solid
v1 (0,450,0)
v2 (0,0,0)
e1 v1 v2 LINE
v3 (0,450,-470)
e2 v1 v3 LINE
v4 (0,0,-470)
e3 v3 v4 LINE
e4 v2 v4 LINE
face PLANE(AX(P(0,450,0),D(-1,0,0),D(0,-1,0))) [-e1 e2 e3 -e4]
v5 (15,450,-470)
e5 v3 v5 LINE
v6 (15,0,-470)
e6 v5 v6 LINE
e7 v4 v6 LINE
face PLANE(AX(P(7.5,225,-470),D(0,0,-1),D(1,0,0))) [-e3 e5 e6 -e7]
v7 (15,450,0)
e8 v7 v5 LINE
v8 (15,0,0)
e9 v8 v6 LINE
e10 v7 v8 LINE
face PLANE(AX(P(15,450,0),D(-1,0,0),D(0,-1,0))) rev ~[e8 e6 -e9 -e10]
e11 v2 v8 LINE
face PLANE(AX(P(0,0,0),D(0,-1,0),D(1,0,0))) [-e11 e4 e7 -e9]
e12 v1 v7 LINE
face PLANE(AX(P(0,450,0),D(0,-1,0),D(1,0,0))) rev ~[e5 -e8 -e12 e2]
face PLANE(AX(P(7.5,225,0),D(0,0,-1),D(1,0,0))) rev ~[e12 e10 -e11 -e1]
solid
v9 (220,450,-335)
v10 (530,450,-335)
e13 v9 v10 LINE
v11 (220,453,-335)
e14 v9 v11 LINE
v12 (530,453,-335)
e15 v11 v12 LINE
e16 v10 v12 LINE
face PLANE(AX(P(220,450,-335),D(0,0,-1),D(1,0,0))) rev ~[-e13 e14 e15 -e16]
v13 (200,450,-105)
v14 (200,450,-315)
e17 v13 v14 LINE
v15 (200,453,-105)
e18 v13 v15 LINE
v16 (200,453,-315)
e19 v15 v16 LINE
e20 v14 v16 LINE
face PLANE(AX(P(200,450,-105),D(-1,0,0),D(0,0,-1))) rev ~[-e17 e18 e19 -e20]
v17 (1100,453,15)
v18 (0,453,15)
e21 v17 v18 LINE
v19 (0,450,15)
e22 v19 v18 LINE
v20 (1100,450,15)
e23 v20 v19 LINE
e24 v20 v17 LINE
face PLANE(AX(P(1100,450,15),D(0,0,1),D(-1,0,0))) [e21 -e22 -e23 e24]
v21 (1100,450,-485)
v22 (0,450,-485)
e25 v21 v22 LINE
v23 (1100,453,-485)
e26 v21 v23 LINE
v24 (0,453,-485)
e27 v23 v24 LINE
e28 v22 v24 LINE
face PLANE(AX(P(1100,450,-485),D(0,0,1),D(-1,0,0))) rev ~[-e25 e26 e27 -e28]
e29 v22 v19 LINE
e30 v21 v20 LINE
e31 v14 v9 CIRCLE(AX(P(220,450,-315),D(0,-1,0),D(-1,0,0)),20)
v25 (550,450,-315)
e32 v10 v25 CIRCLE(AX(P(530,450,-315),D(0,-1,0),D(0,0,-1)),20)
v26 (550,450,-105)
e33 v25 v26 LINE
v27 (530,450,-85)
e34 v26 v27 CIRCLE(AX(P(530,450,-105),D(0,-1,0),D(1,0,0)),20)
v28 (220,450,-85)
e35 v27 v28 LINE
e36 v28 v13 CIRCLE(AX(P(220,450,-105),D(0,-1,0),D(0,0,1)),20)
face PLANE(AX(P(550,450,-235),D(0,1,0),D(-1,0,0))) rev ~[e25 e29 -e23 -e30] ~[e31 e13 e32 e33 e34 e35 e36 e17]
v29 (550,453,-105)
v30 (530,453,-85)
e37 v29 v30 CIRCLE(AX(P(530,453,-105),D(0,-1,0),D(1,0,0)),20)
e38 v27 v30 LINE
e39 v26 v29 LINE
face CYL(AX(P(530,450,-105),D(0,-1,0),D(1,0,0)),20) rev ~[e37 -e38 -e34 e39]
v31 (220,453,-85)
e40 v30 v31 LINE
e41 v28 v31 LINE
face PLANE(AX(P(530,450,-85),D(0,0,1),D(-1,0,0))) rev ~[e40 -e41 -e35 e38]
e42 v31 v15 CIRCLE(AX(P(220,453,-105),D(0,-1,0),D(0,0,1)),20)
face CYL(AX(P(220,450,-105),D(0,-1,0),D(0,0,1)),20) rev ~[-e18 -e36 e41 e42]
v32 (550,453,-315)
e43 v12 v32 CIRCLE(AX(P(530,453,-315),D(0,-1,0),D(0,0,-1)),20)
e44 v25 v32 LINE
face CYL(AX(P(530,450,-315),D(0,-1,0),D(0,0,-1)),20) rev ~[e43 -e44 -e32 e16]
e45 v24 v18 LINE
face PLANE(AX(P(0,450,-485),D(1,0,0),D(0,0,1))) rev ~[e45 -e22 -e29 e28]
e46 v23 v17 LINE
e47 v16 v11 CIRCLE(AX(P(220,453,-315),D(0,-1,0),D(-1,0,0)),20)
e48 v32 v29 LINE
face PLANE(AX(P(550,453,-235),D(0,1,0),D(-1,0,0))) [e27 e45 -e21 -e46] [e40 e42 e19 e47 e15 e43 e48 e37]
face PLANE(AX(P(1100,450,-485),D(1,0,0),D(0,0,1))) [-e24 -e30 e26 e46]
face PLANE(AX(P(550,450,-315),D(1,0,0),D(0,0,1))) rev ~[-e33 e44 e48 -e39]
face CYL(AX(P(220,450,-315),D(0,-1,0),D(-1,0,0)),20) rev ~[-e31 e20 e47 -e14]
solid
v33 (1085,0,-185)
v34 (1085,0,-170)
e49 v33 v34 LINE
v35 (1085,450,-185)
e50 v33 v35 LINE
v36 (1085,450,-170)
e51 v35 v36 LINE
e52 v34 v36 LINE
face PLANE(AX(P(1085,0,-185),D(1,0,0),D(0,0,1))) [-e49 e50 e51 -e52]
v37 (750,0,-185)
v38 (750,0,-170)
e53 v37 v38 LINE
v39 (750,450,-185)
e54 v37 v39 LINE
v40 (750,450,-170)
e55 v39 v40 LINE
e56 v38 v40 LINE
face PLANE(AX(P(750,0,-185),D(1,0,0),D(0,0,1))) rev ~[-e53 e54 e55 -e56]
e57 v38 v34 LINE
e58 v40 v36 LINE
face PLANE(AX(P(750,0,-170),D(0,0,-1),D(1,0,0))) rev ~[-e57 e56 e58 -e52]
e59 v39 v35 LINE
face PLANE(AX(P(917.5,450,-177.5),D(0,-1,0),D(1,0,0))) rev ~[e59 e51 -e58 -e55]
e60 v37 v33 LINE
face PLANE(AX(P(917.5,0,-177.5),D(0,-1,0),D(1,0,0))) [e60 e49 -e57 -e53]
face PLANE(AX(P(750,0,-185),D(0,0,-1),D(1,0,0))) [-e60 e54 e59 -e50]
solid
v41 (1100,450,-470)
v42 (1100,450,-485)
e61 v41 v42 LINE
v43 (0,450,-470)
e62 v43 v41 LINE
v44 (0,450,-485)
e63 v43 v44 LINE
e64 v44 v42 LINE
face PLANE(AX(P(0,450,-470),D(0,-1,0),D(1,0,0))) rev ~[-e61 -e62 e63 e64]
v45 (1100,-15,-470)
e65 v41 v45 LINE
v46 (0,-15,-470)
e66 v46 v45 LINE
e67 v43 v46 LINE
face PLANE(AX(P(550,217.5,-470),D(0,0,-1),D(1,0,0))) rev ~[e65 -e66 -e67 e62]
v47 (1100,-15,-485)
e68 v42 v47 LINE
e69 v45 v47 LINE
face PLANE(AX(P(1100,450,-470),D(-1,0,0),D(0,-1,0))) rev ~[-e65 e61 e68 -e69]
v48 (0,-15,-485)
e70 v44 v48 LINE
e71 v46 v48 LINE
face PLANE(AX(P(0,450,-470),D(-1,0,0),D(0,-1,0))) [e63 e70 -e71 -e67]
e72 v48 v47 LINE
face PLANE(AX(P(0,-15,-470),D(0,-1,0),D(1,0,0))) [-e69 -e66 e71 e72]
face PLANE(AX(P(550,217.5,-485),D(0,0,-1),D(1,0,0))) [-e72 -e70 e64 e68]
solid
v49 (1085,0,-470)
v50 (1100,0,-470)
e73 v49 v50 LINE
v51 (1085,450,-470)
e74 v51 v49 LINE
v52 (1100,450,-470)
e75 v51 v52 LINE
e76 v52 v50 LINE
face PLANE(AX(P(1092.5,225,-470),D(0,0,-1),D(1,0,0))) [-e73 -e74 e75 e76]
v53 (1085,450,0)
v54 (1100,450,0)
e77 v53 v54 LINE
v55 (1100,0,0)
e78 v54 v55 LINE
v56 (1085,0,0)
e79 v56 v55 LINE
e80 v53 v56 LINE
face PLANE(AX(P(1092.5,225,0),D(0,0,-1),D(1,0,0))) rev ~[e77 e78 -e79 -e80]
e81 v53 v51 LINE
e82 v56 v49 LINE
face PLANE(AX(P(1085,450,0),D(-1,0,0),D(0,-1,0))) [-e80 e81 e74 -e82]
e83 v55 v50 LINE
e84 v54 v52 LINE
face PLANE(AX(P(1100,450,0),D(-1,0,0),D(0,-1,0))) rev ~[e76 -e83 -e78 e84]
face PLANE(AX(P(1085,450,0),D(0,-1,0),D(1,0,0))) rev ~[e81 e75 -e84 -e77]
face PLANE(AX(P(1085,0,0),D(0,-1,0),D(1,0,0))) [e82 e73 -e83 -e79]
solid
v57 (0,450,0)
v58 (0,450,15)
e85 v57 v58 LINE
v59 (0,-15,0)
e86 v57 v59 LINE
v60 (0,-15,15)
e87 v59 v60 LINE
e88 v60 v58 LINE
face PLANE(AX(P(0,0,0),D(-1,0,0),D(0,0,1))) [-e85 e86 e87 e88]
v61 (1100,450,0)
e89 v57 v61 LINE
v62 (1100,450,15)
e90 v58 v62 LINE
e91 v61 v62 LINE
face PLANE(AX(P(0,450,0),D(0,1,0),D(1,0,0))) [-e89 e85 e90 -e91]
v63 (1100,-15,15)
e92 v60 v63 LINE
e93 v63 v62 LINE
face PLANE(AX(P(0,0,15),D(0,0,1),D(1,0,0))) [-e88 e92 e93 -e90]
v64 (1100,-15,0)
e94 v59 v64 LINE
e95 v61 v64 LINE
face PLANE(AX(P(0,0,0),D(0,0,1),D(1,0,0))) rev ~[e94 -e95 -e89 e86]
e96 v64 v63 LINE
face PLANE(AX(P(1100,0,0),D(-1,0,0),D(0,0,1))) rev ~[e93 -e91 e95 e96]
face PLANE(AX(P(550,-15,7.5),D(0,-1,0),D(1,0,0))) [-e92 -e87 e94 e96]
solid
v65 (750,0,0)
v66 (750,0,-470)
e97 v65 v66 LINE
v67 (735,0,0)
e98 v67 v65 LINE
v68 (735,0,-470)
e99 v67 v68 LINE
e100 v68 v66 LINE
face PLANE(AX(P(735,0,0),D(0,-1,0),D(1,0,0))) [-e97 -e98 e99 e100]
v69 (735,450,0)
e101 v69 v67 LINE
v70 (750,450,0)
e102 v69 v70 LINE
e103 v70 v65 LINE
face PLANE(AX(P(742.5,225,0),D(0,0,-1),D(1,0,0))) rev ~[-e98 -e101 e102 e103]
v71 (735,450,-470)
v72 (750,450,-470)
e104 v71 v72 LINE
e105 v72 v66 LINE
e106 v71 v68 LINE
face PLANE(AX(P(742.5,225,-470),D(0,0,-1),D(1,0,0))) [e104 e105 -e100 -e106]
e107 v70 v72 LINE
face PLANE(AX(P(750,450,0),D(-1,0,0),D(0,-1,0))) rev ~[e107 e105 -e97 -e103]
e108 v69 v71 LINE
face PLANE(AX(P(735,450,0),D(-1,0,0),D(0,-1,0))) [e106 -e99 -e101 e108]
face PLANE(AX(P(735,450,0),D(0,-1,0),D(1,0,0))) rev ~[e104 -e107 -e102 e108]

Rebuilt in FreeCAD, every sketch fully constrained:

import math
import FreeCAD as App
import Part
import Sketcher

V = App.Vector

doc = App.newDocument("Part")
body = doc.addObject("PartDesign::Body", "Body")

# Sketch on XY plane
sketch1 = body.newObject("Sketcher::SketchObject", "Sketch")
sketch1.AttachmentSupport = (doc.getObject("XY_Plane"), [""])
sketch1.MapMode = "FlatFace"
sketch1.addGeometry(Part.LineSegment(V(0, 450, 0), V(0, 0, 0)), False)
sketch1.addGeometry(Part.LineSegment(V(0, 0, 0), V(1100, 0, 0)), False)
sketch1.addGeometry(Part.LineSegment(V(1100, 0, 0), V(1100, 450, 0)), False)
sketch1.addGeometry(Part.LineSegment(V(1100, 450, 0), V(0, 450, 0)), False)
sketch1.addConstraint(Sketcher.Constraint("Coincident", 0, 2, 1, 1))
sketch1.addConstraint(Sketcher.Constraint("Coincident", 1, 2, 2, 1))
sketch1.addConstraint(Sketcher.Constraint("Coincident", 2, 2, 3, 1))
sketch1.addConstraint(Sketcher.Constraint("Coincident", 3, 2, 0, 1))
sketch1.addConstraint(Sketcher.Constraint("Vertical", 0))
sketch1.addConstraint(Sketcher.Constraint("Horizontal", 1))
sketch1.addConstraint(Sketcher.Constraint("Vertical", 2))
sketch1.addConstraint(Sketcher.Constraint("Horizontal", 3))
sketch1.addConstraint(Sketcher.Constraint("Coincident", 0, 2, -1, 1))
sketch1.addConstraint(Sketcher.Constraint("DistanceX", 1, 1, 1, 2, 1100.0))
sketch1.addConstraint(Sketcher.Constraint("DistanceY", 0, 2, 0, 1, 450.0))
pad1 = body.newObject("PartDesign::Pad", "Pad")
pad1.Profile = sketch1
pad1.Length = 15

# Sketch on XZ plane
sketch2 = body.newObject("Sketcher::SketchObject", "Sketch001")
sketch2.AttachmentSupport = (doc.getObject("XZ_Plane"), [""])
sketch2.MapMode = "FlatFace"
sketch2.addGeometry(Part.LineSegment(V(0, 15, 0), V(0, 0, 0)), False)
sketch2.addGeometry(Part.LineSegment(V(0, 0, 0), V(1100, 0, 0)), False)
sketch2.addGeometry(Part.LineSegment(V(1100, 0, 0), V(1100, 15, 0)), False)
sketch2.addGeometry(Part.LineSegment(V(1100, 15, 0), V(0, 15, 0)), False)
sketch2.addConstraint(Sketcher.Constraint("Coincident", 0, 2, 1, 1))
sketch2.addConstraint(Sketcher.Constraint("Coincident", 1, 2, 2, 1))
sketch2.addConstraint(Sketcher.Constraint("Coincident", 2, 2, 3, 1))
sketch2.addConstraint(Sketcher.Constraint("Coincident", 3, 2, 0, 1))
sketch2.addConstraint(Sketcher.Constraint("Vertical", 0))
sketch2.addConstraint(Sketcher.Constraint("Horizontal", 1))
sketch2.addConstraint(Sketcher.Constraint("Vertical", 2))
sketch2.addConstraint(Sketcher.Constraint("Horizontal", 3))
sketch2.addConstraint(Sketcher.Constraint("Coincident", 0, 2, -1, 1))
sketch2.addConstraint(Sketcher.Constraint("DistanceX", 1, 1, 1, 2, 1100.0))
sketch2.addConstraint(Sketcher.Constraint("DistanceY", 0, 2, 0, 1, 15.0))
pad2 = body.newObject("PartDesign::Pad", "Pad001")
pad2.Profile = sketch2
pad2.Length = 15
body2 = doc.addObject("PartDesign::Body", "Body001")

# Sketch on XY plane
sketch3 = body2.newObject("Sketcher::SketchObject", "Sketch002")
sketch3.AttachmentSupport = (doc.getObject("XY_Plane001"), [""])
sketch3.MapMode = "FlatFace"
sketch3.addGeometry(Part.LineSegment(V(1085, 0, 0), V(1085, 450, 0)), False)
sketch3.addGeometry(Part.LineSegment(V(1085, 450, 0), V(1100, 450, 0)), False)
sketch3.addGeometry(Part.LineSegment(V(1100, 450, 0), V(1100, 0, 0)), False)
sketch3.addGeometry(Part.LineSegment(V(1100, 0, 0), V(1085, 0, 0)), False)
sketch3.addConstraint(Sketcher.Constraint("Coincident", 0, 2, 1, 1))
sketch3.addConstraint(Sketcher.Constraint("Coincident", 1, 2, 2, 1))
sketch3.addConstraint(Sketcher.Constraint("Coincident", 2, 2, 3, 1))
sketch3.addConstraint(Sketcher.Constraint("Coincident", 3, 2, 0, 1))
sketch3.addConstraint(Sketcher.Constraint("Vertical", 0))
sketch3.addConstraint(Sketcher.Constraint("Horizontal", 1))
sketch3.addConstraint(Sketcher.Constraint("Vertical", 2))
sketch3.addConstraint(Sketcher.Constraint("Horizontal", 3))
sketch3.addConstraint(Sketcher.Constraint("PointOnObject", 2, 2, -1))
sketch3.addConstraint(Sketcher.Constraint("DistanceX", 1, 1, 1, 2, 15.0))
sketch3.addConstraint(Sketcher.Constraint("DistanceY", 0, 1, 0, 2, 450.0))
sketch3.addConstraint(Sketcher.Constraint("DistanceX", -1, 1, 0, 2, 1085.0))
pad3 = body2.newObject("PartDesign::Pad", "Pad002")
pad3.Profile = sketch3
pad3.Length = 470
pad3.Reversed = True
body3 = doc.addObject("PartDesign::Body", "Body002")

# Sketch on XY plane
sketch4 = body3.newObject("Sketcher::SketchObject", "Sketch003")
sketch4.AttachmentSupport = (doc.getObject("XY_Plane002"), [""])
sketch4.MapMode = "FlatFace"
sketch4.addGeometry(Part.LineSegment(V(0, 0, 0), V(0, 450, 0)), False)
sketch4.addGeometry(Part.LineSegment(V(0, 450, 0), V(15, 450, 0)), False)
sketch4.addGeometry(Part.LineSegment(V(15, 450, 0), V(15, 0, 0)), False)
sketch4.addGeometry(Part.LineSegment(V(15, 0, 0), V(0, 0, 0)), False)
sketch4.addConstraint(Sketcher.Constraint("Coincident", 0, 2, 1, 1))
sketch4.addConstraint(Sketcher.Constraint("Coincident", 1, 2, 2, 1))
sketch4.addConstraint(Sketcher.Constraint("Coincident", 2, 2, 3, 1))
sketch4.addConstraint(Sketcher.Constraint("Coincident", 3, 2, 0, 1))
sketch4.addConstraint(Sketcher.Constraint("Vertical", 0))
sketch4.addConstraint(Sketcher.Constraint("Horizontal", 1))
sketch4.addConstraint(Sketcher.Constraint("Vertical", 2))
sketch4.addConstraint(Sketcher.Constraint("Horizontal", 3))
sketch4.addConstraint(Sketcher.Constraint("Coincident", 3, 2, -1, 1))
sketch4.addConstraint(Sketcher.Constraint("DistanceX", 1, 1, 1, 2, 15.0))
sketch4.addConstraint(Sketcher.Constraint("DistanceY", 0, 1, 0, 2, 450.0))
pad4 = body3.newObject("PartDesign::Pad", "Pad003")
pad4.Profile = sketch4
pad4.Length = 470
pad4.Reversed = True
body4 = doc.addObject("PartDesign::Body", "Body003")

# Sketch on XY plane
sketch5 = body4.newObject("Sketcher::SketchObject", "Sketch004")
sketch5.AttachmentSupport = (doc.getObject("XY_Plane003"), [""])
sketch5.MapMode = "FlatFace"
sketch5.addGeometry(Part.LineSegment(V(735, 0, 0), V(735, 450, 0)), False)
sketch5.addGeometry(Part.LineSegment(V(735, 450, 0), V(750, 450, 0)), False)
sketch5.addGeometry(Part.LineSegment(V(750, 450, 0), V(750, 0, 0)), False)
sketch5.addGeometry(Part.LineSegment(V(750, 0, 0), V(735, 0, 0)), False)
sketch5.addConstraint(Sketcher.Constraint("Coincident", 0, 2, 1, 1))
sketch5.addConstraint(Sketcher.Constraint("Coincident", 1, 2, 2, 1))
sketch5.addConstraint(Sketcher.Constraint("Coincident", 2, 2, 3, 1))
sketch5.addConstraint(Sketcher.Constraint("Coincident", 3, 2, 0, 1))
sketch5.addConstraint(Sketcher.Constraint("Vertical", 0))
sketch5.addConstraint(Sketcher.Constraint("Horizontal", 1))
sketch5.addConstraint(Sketcher.Constraint("Vertical", 2))
sketch5.addConstraint(Sketcher.Constraint("Horizontal", 3))
sketch5.addConstraint(Sketcher.Constraint("PointOnObject", 2, 2, -1))
sketch5.addConstraint(Sketcher.Constraint("DistanceX", 1, 1, 1, 2, 15.0))
sketch5.addConstraint(Sketcher.Constraint("DistanceY", 0, 1, 0, 2, 450.0))
sketch5.addConstraint(Sketcher.Constraint("DistanceX", -1, 1, 0, 2, 735.0))
pad5 = body4.newObject("PartDesign::Pad", "Pad004")
pad5.Profile = sketch5
pad5.Length = 470
pad5.Reversed = True
body5 = doc.addObject("PartDesign::Body", "Body004")

# Sketch on XY plane
sketch6 = body5.newObject("Sketcher::SketchObject", "Sketch005")
sketch6.AttachmentSupport = (doc.getObject("XY_Plane004"), [""])
sketch6.MapMode = "FlatFace"
sketch6.AttachmentOffset = App.Placement(V(0, 0, -470), App.Rotation())
sketch6.addGeometry(Part.LineSegment(V(0, -15, 0), V(0, 450, 0)), False)
sketch6.addGeometry(Part.LineSegment(V(0, 450, 0), V(1100, 450, 0)), False)
sketch6.addGeometry(Part.LineSegment(V(1100, 450, 0), V(1100, -15, 0)), False)
sketch6.addGeometry(Part.LineSegment(V(1100, -15, 0), V(0, -15, 0)), False)
sketch6.addConstraint(Sketcher.Constraint("Coincident", 0, 2, 1, 1))
sketch6.addConstraint(Sketcher.Constraint("Coincident", 1, 2, 2, 1))
sketch6.addConstraint(Sketcher.Constraint("Coincident", 2, 2, 3, 1))
sketch6.addConstraint(Sketcher.Constraint("Coincident", 3, 2, 0, 1))
sketch6.addConstraint(Sketcher.Constraint("Vertical", 0))
sketch6.addConstraint(Sketcher.Constraint("Horizontal", 1))
sketch6.addConstraint(Sketcher.Constraint("Vertical", 2))
sketch6.addConstraint(Sketcher.Constraint("Horizontal", 3))
sketch6.addConstraint(Sketcher.Constraint("PointOnObject", 0, 2, -2))
sketch6.addConstraint(Sketcher.Constraint("DistanceX", 1, 1, 1, 2, 1100.0))
sketch6.addConstraint(Sketcher.Constraint("DistanceY", 0, 1, 0, 2, 465.0))
sketch6.addConstraint(Sketcher.Constraint("DistanceY", -1, 1, 0, 2, 450.0))
pad6 = body5.newObject("PartDesign::Pad", "Pad005")
pad6.Profile = sketch6
pad6.Length = 15
pad6.Reversed = True
body6 = doc.addObject("PartDesign::Body", "Body005")

# Sketch on XZ plane
sketch7 = body6.newObject("Sketcher::SketchObject", "Sketch006")
sketch7.AttachmentSupport = (doc.getObject("XZ_Plane005"), [""])
sketch7.MapMode = "FlatFace"
sketch7.addGeometry(Part.LineSegment(V(750, -170, 0), V(750, -185, 0)), False)
sketch7.addGeometry(Part.LineSegment(V(750, -185, 0), V(1085, -185, 0)), False)
sketch7.addGeometry(Part.LineSegment(V(1085, -185, 0), V(1085, -170, 0)), False)
sketch7.addGeometry(Part.LineSegment(V(1085, -170, 0), V(750, -170, 0)), False)
sketch7.addConstraint(Sketcher.Constraint("Coincident", 0, 2, 1, 1))
sketch7.addConstraint(Sketcher.Constraint("Coincident", 1, 2, 2, 1))
sketch7.addConstraint(Sketcher.Constraint("Coincident", 2, 2, 3, 1))
sketch7.addConstraint(Sketcher.Constraint("Coincident", 3, 2, 0, 1))
sketch7.addConstraint(Sketcher.Constraint("Vertical", 0))
sketch7.addConstraint(Sketcher.Constraint("Horizontal", 1))
sketch7.addConstraint(Sketcher.Constraint("Vertical", 2))
sketch7.addConstraint(Sketcher.Constraint("Horizontal", 3))
sketch7.addConstraint(Sketcher.Constraint("DistanceX", 1, 1, 1, 2, 335.0))
sketch7.addConstraint(Sketcher.Constraint("DistanceY", 0, 2, 0, 1, 15.0))
sketch7.addConstraint(Sketcher.Constraint("DistanceX", -1, 1, 0, 2, 750.0))
sketch7.addConstraint(Sketcher.Constraint("DistanceY", 0, 2, -1, 1, 185.0))
pad7 = body6.newObject("PartDesign::Pad", "Pad006")
pad7.Profile = sketch7
pad7.Length = 450
pad7.Reversed = True
body7 = doc.addObject("PartDesign::Body", "Body006")

# Sketch on XZ plane
sketch8 = body7.newObject("Sketcher::SketchObject", "Sketch007")
sketch8.AttachmentSupport = (doc.getObject("XZ_Plane006"), [""])
sketch8.MapMode = "FlatFace"
sketch8.AttachmentOffset = App.Placement(V(0, 0, -450), App.Rotation())
sketch8.addGeometry(Part.LineSegment(V(1100, 15, 0), V(1100, -485, 0)), False)
sketch8.addGeometry(Part.LineSegment(V(1100, -485, 0), V(0, -485, 0)), False)
sketch8.addGeometry(Part.LineSegment(V(0, -485, 0), V(0, 15, 0)), False)
sketch8.addGeometry(Part.LineSegment(V(0, 15, 0), V(1100, 15, 0)), False)
sketch8.addGeometry(Part.LineSegment(V(550, -315, 0), V(550, -105, 0)), False)
sketch8.addGeometry(Part.ArcOfCircle(Part.Circle(V(530, -105, 0), V(0, 0, 1), 20), math.radians(0), math.radians(90)), False)
sketch8.addGeometry(Part.LineSegment(V(530, -85, 0), V(220, -85, 0)), False)
sketch8.addGeometry(Part.ArcOfCircle(Part.Circle(V(220, -105, 0), V(0, 0, 1), 20), math.radians(90), math.radians(180)), False)
sketch8.addGeometry(Part.LineSegment(V(200, -105, 0), V(200, -315, 0)), False)
sketch8.addGeometry(Part.ArcOfCircle(Part.Circle(V(220, -315, 0), V(0, 0, 1), 20), math.radians(180), math.radians(270)), False)
sketch8.addGeometry(Part.LineSegment(V(220, -335, 0), V(530, -335, 0)), False)
sketch8.addGeometry(Part.ArcOfCircle(Part.Circle(V(530, -315, 0), V(0, 0, 1), 20), math.radians(-90), math.radians(0)), False)
sketch8.addConstraint(Sketcher.Constraint("Coincident", 0, 2, 1, 1))
sketch8.addConstraint(Sketcher.Constraint("Coincident", 1, 2, 2, 1))
sketch8.addConstraint(Sketcher.Constraint("Coincident", 2, 2, 3, 1))
sketch8.addConstraint(Sketcher.Constraint("Coincident", 3, 2, 0, 1))
sketch8.addConstraint(Sketcher.Constraint("Tangent", 4, 2, 5, 1))
sketch8.addConstraint(Sketcher.Constraint("Tangent", 5, 2, 6, 1))
sketch8.addConstraint(Sketcher.Constraint("Tangent", 6, 2, 7, 1))
sketch8.addConstraint(Sketcher.Constraint("Tangent", 7, 2, 8, 1))
sketch8.addConstraint(Sketcher.Constraint("Tangent", 8, 2, 9, 1))
sketch8.addConstraint(Sketcher.Constraint("Tangent", 9, 2, 10, 1))
sketch8.addConstraint(Sketcher.Constraint("Tangent", 10, 2, 11, 1))
sketch8.addConstraint(Sketcher.Constraint("Tangent", 11, 2, 4, 1))
sketch8.addConstraint(Sketcher.Constraint("Vertical", 0))
sketch8.addConstraint(Sketcher.Constraint("Horizontal", 1))
sketch8.addConstraint(Sketcher.Constraint("Vertical", 2))
sketch8.addConstraint(Sketcher.Constraint("Horizontal", 3))
sketch8.addConstraint(Sketcher.Constraint("Vertical", 4))
sketch8.addConstraint(Sketcher.Constraint("Horizontal", 6))
sketch8.addConstraint(Sketcher.Constraint("Vertical", 8))
sketch8.addConstraint(Sketcher.Constraint("Horizontal", 10))
sketch8.addConstraint(Sketcher.Constraint("Equal", 5, 7))
sketch8.addConstraint(Sketcher.Constraint("Equal", 7, 9))
sketch8.addConstraint(Sketcher.Constraint("Equal", 9, 11))
sketch8.addConstraint(Sketcher.Constraint("PointOnObject", 1, 2, -2))
sketch8.addConstraint(Sketcher.Constraint("Radius", 5, 20.0))
sketch8.addConstraint(Sketcher.Constraint("DistanceX", 1, 2, 1, 1, 1100.0))
sketch8.addConstraint(Sketcher.Constraint("DistanceX", 6, 2, 6, 1, 310.0))
sketch8.addConstraint(Sketcher.Constraint("DistanceY", 0, 2, 0, 1, 500.0))
sketch8.addConstraint(Sketcher.Constraint("DistanceY", 4, 1, 4, 2, 210.0))
sketch8.addConstraint(Sketcher.Constraint("DistanceX", -1, 1, 5, 3, 530.0))
sketch8.addConstraint(Sketcher.Constraint("DistanceY", 5, 3, -1, 1, 105.0))
sketch8.addConstraint(Sketcher.Constraint("DistanceY", 0, 2, -1, 1, 485.0))
pad8 = body7.newObject("PartDesign::Pad", "Pad007")
pad8.Profile = sketch8
pad8.Length = 3
pad8.Reversed = True

doc.recompute()
